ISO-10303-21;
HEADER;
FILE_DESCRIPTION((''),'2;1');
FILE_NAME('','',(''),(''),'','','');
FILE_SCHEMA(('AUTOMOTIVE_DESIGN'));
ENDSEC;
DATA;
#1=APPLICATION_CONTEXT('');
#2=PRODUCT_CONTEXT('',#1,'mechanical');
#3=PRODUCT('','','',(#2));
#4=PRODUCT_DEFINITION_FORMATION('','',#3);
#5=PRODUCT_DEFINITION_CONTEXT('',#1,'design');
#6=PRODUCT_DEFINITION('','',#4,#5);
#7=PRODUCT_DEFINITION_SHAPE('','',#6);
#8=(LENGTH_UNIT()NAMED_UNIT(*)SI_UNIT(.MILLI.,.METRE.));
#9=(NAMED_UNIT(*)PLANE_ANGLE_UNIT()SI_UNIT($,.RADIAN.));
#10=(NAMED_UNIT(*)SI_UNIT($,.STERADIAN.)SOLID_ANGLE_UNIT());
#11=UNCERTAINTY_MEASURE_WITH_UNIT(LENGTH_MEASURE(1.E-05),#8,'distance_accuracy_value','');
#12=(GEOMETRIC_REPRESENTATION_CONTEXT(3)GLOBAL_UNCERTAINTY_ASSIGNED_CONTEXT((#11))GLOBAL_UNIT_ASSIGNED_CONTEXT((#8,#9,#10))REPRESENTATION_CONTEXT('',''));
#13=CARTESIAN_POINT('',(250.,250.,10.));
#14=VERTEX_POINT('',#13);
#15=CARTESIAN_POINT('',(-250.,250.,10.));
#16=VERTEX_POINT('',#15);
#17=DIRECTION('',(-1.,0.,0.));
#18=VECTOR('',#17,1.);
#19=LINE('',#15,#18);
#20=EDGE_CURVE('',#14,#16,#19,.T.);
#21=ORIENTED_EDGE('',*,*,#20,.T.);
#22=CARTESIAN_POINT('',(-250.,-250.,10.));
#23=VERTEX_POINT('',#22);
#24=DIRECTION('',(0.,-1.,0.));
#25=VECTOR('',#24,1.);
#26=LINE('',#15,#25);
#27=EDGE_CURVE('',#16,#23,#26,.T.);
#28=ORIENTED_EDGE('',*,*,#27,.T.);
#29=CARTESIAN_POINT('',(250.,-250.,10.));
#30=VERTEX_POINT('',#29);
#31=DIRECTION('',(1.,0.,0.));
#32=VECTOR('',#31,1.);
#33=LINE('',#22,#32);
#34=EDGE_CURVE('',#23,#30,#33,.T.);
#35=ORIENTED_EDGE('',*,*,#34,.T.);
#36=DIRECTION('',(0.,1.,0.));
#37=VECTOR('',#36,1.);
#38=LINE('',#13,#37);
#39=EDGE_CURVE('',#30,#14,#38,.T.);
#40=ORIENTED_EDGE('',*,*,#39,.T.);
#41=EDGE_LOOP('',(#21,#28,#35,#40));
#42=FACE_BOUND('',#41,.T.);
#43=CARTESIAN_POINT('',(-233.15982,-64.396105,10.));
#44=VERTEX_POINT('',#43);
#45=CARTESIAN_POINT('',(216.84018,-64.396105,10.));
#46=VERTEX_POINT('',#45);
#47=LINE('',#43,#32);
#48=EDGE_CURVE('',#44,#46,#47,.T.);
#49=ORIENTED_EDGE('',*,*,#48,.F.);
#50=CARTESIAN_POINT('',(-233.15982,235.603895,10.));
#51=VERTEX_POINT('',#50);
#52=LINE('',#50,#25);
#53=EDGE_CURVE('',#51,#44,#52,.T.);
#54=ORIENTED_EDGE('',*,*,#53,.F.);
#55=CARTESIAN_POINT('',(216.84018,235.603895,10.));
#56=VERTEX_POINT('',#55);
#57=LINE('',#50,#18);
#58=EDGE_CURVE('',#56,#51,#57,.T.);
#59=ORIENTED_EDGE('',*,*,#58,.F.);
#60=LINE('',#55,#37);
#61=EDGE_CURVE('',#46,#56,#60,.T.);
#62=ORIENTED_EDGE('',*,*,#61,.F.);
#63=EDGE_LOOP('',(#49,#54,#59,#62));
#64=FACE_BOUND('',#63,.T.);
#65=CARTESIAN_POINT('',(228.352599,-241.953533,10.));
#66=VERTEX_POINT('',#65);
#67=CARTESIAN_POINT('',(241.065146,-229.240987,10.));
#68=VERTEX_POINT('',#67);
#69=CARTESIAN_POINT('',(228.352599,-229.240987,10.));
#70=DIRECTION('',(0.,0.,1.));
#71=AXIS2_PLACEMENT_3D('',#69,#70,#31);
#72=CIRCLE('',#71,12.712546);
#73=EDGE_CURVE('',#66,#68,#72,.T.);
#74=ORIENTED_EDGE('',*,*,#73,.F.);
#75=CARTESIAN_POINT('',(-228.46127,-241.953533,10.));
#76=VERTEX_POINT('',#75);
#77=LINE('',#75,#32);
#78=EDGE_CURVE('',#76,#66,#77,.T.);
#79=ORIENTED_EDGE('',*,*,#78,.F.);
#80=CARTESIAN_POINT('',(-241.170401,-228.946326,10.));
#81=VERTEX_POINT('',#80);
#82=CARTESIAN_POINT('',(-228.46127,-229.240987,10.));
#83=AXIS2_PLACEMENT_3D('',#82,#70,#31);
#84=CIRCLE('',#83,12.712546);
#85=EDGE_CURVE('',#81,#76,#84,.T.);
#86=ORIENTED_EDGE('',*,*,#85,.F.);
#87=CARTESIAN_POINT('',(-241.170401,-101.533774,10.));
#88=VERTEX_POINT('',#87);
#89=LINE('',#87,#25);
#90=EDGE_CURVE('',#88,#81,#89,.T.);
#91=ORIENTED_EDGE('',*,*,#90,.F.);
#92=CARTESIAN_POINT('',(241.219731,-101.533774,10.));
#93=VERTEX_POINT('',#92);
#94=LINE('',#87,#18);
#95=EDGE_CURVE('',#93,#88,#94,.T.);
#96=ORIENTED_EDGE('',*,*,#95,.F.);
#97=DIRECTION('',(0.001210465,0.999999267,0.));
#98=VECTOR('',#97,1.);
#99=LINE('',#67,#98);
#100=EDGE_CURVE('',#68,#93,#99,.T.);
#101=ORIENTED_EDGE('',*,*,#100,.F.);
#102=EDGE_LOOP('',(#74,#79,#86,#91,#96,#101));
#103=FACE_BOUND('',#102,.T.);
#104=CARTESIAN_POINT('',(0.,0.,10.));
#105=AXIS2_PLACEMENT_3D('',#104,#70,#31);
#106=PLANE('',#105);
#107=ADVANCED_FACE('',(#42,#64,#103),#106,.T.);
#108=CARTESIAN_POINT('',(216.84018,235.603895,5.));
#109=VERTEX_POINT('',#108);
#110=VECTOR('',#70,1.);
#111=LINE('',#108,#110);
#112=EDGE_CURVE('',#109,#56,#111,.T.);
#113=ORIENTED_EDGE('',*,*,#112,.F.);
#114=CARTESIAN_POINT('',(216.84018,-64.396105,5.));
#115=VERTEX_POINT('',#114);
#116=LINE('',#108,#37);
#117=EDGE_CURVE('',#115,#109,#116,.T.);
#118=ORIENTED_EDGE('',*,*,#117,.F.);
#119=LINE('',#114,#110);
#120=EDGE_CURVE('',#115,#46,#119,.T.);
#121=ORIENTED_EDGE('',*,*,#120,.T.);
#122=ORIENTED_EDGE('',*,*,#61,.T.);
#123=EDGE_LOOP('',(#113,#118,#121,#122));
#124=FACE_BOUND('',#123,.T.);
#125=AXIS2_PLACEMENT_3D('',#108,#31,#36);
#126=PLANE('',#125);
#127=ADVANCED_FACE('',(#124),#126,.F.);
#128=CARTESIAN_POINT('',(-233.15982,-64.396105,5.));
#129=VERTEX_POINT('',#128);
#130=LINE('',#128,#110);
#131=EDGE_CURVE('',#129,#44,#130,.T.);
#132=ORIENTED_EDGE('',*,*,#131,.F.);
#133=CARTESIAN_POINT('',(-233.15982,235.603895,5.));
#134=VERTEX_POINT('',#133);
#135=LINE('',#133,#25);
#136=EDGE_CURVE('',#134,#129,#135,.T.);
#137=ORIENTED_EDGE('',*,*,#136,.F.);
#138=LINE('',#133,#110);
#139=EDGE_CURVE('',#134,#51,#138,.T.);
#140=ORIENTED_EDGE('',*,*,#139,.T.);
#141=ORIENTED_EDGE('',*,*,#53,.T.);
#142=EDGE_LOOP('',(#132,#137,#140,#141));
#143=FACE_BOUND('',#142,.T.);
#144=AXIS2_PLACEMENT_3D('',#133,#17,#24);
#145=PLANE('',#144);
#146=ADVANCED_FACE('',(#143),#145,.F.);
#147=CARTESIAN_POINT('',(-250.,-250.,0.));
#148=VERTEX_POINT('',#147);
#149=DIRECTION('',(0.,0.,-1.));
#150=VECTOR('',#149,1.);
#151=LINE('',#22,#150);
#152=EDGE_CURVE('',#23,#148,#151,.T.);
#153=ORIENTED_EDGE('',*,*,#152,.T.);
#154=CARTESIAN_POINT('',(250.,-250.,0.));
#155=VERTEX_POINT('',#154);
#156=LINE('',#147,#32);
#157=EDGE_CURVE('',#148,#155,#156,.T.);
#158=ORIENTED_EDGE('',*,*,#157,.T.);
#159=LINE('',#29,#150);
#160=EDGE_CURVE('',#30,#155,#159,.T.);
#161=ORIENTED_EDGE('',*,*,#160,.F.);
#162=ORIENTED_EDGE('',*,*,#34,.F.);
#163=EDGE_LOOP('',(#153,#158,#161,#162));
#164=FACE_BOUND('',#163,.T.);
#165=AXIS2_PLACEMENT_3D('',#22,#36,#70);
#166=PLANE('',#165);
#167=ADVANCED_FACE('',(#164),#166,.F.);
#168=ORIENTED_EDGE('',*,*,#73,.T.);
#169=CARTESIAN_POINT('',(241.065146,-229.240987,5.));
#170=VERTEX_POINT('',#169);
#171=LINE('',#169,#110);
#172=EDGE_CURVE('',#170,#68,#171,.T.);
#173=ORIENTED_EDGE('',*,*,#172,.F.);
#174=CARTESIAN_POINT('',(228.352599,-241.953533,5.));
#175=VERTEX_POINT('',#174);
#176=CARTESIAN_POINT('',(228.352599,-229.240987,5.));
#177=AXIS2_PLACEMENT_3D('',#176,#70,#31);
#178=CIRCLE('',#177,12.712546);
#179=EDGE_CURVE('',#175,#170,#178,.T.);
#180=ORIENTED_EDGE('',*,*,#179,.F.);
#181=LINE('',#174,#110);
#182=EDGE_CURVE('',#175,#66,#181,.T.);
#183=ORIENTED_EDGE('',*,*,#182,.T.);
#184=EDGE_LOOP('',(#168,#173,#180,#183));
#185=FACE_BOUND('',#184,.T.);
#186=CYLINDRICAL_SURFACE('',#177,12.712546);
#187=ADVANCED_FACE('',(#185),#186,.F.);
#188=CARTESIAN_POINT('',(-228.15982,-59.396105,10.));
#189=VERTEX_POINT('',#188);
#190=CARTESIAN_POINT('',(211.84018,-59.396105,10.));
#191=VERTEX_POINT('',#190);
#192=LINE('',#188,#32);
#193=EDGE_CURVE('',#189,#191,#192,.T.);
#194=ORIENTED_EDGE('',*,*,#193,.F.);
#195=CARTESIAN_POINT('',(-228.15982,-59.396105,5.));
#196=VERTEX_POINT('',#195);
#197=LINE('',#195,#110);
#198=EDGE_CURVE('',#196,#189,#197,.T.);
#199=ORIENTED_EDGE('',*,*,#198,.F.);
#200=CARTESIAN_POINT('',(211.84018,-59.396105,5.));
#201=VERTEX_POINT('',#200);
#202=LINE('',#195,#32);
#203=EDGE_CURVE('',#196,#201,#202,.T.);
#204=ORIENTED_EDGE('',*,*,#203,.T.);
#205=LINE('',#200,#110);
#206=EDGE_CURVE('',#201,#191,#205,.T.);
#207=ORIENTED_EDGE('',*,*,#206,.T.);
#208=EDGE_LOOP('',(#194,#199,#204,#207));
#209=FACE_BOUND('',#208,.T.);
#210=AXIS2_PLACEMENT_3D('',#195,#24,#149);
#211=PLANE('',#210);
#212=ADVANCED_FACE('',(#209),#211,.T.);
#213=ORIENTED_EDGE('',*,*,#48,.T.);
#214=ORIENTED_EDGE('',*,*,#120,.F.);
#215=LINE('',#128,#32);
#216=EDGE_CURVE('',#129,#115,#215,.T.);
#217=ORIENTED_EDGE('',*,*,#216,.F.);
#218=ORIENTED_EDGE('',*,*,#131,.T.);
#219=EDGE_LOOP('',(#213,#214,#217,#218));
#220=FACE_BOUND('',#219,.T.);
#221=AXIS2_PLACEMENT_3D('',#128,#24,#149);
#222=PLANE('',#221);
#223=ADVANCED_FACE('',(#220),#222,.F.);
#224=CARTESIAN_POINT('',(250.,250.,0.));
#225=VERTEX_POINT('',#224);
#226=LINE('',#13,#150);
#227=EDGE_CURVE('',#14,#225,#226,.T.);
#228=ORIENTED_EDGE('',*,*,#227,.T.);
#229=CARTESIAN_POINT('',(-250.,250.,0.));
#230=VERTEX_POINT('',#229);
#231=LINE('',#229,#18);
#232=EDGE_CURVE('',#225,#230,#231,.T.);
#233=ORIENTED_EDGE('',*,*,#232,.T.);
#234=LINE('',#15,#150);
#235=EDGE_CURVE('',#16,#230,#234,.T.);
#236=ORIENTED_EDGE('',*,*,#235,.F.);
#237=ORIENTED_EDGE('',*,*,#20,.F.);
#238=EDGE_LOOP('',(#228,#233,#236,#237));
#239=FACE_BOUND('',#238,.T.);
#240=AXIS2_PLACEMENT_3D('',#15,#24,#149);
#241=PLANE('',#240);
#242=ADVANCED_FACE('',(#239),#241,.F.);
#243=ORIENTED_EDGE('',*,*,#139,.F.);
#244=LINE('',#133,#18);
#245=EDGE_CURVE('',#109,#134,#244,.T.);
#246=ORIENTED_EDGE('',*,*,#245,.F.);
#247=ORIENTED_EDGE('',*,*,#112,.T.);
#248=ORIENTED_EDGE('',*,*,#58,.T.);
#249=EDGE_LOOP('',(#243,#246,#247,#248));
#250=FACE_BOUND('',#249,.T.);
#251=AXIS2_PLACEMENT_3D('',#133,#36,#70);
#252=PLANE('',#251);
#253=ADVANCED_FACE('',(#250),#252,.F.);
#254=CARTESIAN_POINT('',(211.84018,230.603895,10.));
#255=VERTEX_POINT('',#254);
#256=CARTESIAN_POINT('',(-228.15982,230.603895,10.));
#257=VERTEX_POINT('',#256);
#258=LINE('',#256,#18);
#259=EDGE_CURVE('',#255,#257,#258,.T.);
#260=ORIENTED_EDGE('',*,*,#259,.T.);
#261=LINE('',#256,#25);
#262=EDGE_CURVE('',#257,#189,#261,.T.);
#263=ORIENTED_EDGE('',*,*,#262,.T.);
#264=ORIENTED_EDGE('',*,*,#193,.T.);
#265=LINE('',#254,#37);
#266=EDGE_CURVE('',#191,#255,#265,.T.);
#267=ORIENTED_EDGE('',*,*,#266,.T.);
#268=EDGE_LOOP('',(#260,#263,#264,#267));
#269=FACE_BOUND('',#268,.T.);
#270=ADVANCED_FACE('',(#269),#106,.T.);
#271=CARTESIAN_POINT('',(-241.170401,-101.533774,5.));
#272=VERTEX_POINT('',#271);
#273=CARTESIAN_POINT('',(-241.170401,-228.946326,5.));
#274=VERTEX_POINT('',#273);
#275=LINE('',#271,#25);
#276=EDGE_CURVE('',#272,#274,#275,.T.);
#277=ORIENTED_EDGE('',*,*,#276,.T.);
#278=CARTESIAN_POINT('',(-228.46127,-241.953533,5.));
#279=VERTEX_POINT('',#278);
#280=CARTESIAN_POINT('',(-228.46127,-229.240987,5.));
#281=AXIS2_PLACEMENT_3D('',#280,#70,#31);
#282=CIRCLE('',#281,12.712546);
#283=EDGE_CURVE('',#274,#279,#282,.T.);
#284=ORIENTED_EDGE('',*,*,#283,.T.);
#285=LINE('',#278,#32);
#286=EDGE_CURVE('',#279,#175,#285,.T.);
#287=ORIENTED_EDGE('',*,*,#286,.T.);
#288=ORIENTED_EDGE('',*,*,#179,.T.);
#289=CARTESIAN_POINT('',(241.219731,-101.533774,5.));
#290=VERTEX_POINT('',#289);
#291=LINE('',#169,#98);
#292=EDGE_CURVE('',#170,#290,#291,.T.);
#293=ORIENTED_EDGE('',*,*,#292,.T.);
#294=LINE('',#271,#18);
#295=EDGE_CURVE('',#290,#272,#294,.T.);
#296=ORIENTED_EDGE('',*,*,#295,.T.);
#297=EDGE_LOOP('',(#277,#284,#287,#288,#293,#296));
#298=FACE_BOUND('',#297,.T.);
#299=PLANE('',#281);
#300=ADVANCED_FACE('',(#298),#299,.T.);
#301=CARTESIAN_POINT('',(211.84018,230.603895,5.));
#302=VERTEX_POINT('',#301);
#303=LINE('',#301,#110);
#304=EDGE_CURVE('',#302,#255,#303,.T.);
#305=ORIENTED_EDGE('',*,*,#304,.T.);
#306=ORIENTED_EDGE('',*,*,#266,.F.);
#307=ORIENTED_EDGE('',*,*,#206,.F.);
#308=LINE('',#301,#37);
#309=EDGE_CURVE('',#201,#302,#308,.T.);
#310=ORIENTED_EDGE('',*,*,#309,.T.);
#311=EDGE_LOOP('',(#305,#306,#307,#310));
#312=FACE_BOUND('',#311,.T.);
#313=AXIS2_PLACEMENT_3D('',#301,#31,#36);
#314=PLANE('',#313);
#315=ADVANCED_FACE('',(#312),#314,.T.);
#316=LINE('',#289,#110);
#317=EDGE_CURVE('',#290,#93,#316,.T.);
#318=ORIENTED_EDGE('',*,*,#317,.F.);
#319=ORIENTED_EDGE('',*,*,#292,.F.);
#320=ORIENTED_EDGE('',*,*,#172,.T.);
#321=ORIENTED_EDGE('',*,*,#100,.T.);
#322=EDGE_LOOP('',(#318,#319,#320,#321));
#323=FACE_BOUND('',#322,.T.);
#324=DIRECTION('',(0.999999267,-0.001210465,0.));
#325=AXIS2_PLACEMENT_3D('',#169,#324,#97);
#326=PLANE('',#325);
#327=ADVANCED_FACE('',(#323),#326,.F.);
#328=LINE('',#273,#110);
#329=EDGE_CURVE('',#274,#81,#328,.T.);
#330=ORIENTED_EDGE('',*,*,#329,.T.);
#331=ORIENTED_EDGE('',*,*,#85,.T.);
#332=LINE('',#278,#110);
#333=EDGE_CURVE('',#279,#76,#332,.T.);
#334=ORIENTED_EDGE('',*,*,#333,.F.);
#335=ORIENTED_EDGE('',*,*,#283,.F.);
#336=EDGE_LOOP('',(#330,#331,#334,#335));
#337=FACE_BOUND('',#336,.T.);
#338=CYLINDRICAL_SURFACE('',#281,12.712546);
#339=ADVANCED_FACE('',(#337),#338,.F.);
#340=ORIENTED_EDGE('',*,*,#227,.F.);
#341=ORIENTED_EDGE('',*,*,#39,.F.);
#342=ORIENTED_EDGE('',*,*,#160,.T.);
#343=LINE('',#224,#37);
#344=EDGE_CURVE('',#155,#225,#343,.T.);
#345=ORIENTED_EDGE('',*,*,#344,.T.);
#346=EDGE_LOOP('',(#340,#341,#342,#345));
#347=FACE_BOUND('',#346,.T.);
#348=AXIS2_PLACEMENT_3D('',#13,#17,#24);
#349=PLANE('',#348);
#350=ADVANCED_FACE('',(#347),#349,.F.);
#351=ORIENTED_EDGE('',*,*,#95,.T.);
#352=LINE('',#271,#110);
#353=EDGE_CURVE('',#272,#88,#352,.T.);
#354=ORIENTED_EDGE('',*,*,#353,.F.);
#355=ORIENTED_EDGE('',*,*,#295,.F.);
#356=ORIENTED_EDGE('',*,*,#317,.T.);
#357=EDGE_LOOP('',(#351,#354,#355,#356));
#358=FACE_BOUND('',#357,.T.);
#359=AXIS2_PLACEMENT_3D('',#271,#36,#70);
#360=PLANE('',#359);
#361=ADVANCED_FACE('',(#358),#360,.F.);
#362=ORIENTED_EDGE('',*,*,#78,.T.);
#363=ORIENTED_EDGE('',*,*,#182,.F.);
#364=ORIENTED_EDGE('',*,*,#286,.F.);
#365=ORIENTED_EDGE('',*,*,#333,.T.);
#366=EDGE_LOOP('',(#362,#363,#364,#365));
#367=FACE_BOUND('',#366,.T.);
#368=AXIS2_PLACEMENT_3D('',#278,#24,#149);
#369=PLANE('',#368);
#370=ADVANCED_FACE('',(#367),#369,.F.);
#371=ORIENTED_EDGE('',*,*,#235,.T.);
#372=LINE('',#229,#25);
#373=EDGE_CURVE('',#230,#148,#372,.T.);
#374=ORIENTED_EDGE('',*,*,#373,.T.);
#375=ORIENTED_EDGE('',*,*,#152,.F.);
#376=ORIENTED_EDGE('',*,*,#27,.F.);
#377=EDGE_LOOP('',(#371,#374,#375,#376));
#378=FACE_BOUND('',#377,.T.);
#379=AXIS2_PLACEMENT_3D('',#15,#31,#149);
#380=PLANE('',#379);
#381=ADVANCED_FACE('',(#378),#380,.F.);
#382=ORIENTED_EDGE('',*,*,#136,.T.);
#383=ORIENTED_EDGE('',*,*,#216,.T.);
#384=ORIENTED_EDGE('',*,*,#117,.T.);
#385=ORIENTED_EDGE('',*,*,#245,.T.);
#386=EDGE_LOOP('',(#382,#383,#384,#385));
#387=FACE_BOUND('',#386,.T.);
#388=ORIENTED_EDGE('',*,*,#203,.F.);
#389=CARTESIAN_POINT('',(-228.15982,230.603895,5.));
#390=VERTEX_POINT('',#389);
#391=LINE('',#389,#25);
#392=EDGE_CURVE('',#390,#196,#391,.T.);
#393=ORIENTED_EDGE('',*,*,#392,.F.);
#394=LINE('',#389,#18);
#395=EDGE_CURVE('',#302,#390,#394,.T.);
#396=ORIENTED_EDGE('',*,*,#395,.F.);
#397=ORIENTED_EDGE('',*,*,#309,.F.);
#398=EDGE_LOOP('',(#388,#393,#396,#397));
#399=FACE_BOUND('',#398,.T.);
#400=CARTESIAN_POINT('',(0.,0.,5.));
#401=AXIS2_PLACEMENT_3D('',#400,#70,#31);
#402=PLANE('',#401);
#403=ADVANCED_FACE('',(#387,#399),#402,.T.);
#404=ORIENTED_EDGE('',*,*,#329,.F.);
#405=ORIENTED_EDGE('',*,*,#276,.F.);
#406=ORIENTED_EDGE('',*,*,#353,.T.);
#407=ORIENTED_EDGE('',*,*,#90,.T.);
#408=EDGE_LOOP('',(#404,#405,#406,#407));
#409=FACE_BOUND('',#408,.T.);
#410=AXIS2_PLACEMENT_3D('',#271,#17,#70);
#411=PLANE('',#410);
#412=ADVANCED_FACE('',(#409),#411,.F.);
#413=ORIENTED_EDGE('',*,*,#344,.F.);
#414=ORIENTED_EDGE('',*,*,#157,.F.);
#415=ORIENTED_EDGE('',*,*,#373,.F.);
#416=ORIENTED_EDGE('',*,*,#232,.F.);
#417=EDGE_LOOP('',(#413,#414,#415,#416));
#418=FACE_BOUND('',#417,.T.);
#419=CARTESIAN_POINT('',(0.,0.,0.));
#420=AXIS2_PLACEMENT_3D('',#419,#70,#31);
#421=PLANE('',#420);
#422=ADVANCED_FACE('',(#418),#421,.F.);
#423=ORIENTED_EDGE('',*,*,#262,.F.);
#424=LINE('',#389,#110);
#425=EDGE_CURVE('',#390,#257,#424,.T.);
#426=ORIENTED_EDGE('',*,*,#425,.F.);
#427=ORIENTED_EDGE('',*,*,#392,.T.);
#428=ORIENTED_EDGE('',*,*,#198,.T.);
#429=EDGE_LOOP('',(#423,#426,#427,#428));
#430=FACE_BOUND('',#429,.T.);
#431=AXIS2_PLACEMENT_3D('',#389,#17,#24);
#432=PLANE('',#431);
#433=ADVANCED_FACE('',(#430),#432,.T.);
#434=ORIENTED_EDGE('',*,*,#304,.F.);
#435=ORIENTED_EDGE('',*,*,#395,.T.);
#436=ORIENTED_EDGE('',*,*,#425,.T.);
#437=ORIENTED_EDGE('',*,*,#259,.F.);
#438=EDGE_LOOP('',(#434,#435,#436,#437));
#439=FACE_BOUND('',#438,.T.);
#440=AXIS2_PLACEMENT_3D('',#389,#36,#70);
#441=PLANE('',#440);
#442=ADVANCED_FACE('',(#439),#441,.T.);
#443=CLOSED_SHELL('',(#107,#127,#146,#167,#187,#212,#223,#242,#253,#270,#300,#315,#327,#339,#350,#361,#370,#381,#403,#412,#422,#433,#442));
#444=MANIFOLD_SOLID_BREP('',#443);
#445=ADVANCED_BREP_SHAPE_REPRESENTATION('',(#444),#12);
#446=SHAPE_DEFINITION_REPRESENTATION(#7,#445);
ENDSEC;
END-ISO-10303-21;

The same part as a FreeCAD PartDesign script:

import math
import FreeCAD as App
import Part
import Sketcher
from FreeCAD import Vector

doc = App.newDocument("Part")
body = doc.addObject("PartDesign::Body", "Body")

sketch1 = doc.addObject("Sketcher::SketchObject", "Sketch")
body.addObject(sketch1)
sketch1.AttachmentSupport = (doc.XY_Plane, [""])
sketch1.MapMode = "FlatFace"
sketch1.addGeometry([
    Part.LineSegment(Vector(-250, 250, 0), Vector(-250, -250, 0)),
    Part.LineSegment(Vector(-250, -250, 0), Vector(250, -250, 0)),
    Part.LineSegment(Vector(250, -250, 0), Vector(250, 250, 0)),
    Part.LineSegment(Vector(250, 250, 0), Vector(-250, 250, 0)),
], False)
sketch1.addConstraint([
    Sketcher.Constraint("Coincident", 0, 2, 1, 1),
    Sketcher.Constraint("Coincident", 1, 2, 2, 1),
    Sketcher.Constraint("Coincident", 2, 2, 3, 1),
    Sketcher.Constraint("Coincident", 3, 2, 0, 1),
    Sketcher.Constraint("Vertical", 0),
    Sketcher.Constraint("Horizontal", 1),
    Sketcher.Constraint("Vertical", 2),
    Sketcher.Constraint("Horizontal", 3),
    Sketcher.Constraint("Symmetric", 0, 2, 2, 2, -1, 1),
    Sketcher.Constraint("Equal", 3, 0),
    Sketcher.Constraint("DistanceX", 1, 1, 1, 2, 500.0),
])
pad1 = doc.addObject("PartDesign::Pad", "Pad")
body.addObject(pad1)
pad1.Profile = sketch1
pad1.Length = 10

sketch2 = doc.addObject("Sketcher::SketchObject", "Sketch001")
body.addObject(sketch2)
sketch2.AttachmentSupport = (doc.XY_Plane, [""])
sketch2.MapMode = "FlatFace"
sketch2.AttachmentOffset = App.Placement(Vector(0, 0, 10), App.Rotation())
sketch2.addGeometry([
    Part.LineSegment(Vector(241, -229, 0), Vector(241, -102, 0)),
    Part.LineSegment(Vector(241, -102, 0), Vector(-241, -102, 0)),
    Part.LineSegment(Vector(-241, -102, 0), Vector(-241, -229, 0)),
    Part.ArcOfCircle(Part.Circle(Vector(-228, -229, 0), Vector(0, 0, 1), 13), math.radians(179), math.radians(270)),
    Part.LineSegment(Vector(-228, -242, 0), Vector(228, -242, 0)),
    Part.ArcOfCircle(Part.Circle(Vector(228, -229, 0), Vector(0, 0, 1), 13), math.radians(-90), math.radians(0)),
], False)
sketch2.addConstraint([
    Sketcher.Constraint("Coincident", 0, 2, 1, 1),
    Sketcher.Constraint("Coincident", 1, 2, 2, 1),
    Sketcher.Constraint("Coincident", 2, 2, 3, 1),
    Sketcher.Constraint("Tangent", 3, 2, 4, 1),
    Sketcher.Constraint("Tangent", 4, 2, 5, 1),
    Sketcher.Constraint("Coincident", 5, 2, 0, 1),
    Sketcher.Constraint("Horizontal", 1),
    Sketcher.Constraint("Vertical", 2),
    Sketcher.Constraint("Horizontal", 4),
    Sketcher.Constraint("Equal", 3, 5),
    Sketcher.Constraint("Horizontal", 3, 3, 5, 2),
    Sketcher.Constraint("Radius", 3, 12.712546),
    Sketcher.Constraint("DistanceX", 3, 3, 0, 2, 469.681001),
    Sketcher.Constraint("DistanceX", 1, 2, 5, 3, 469.523),
    Sketcher.Constraint("DistanceX", 1, 2, 1, 1, 482.390132),
    Sketcher.Constraint("DistanceY", 2, 2, 2, 1, 127.412552),
    Sketcher.Constraint("DistanceX", -1, 1, 5, 3, 228.3526),
    Sketcher.Constraint("DistanceY", 3, 3, -1, 1, 229.240987),
])
pocket1 = doc.addObject("PartDesign::Pocket", "Pocket")
body.addObject(pocket1)
pocket1.Profile = sketch2
pocket1.Length = 5

sketch3 = doc.addObject("Sketcher::SketchObject", "Sketch002")
body.addObject(sketch3)
sketch3.AttachmentSupport = (doc.XY_Plane, [""])
sketch3.MapMode = "FlatFace"
sketch3.AttachmentOffset = App.Placement(Vector(0, 0, 10), App.Rotation())
sketch3.addGeometry([
    Part.LineSegment(Vector(-233, 236, 0), Vector(-233, -64, 0)),
    Part.LineSegment(Vector(-233, -64, 0), Vector(217, -64, 0)),
    Part.LineSegment(Vector(217, -64, 0), Vector(217, 236, 0)),
    Part.LineSegment(Vector(217, 236, 0), Vector(-233, 236, 0)),
    Part.LineSegment(Vector(212, -59, 0), Vector(-228, -59, 0)),
    Part.LineSegment(Vector(-228, -59, 0), Vector(-228, 231, 0)),
    Part.LineSegment(Vector(-228, 231, 0), Vector(212, 231, 0)),
    Part.LineSegment(Vector(212, 231, 0), Vector(212, -59, 0)),
], False)
sketch3.addConstraint([
    Sketcher.Constraint("Coincident", 0, 2, 1, 1),
    Sketcher.Constraint("Coincident", 1, 2, 2, 1),
    Sketcher.Constraint("Coincident", 2, 2, 3, 1),
    Sketcher.Constraint("Coincident", 3, 2, 0, 1),
    Sketcher.Constraint("Coincident", 4, 2, 5, 1),
    Sketcher.Constraint("Coincident", 5, 2, 6, 1),
    Sketcher.Constraint("Coincident", 6, 2, 7, 1),
    Sketcher.Constraint("Coincident", 7, 2, 4, 1),
    Sketcher.Constraint("Vertical", 0),
    Sketcher.Constraint("Horizontal", 1),
    Sketcher.Constraint("Vertical", 2),
    Sketcher.Constraint("Horizontal", 3),
    Sketcher.Constraint("Horizontal", 4),
    Sketcher.Constraint("Vertical", 5),
    Sketcher.Constraint("Horizontal", 6),
    Sketcher.Constraint("Vertical", 7),
    Sketcher.Constraint("DistanceX", 1, 1, 1, 2, 450.0),
    Sketcher.Constraint("DistanceX", 4, 2, 4, 1, 440.0),
    Sketcher.Constraint("DistanceY", 0, 2, 0, 1, 300.0),
    Sketcher.Constraint("DistanceY", 5, 1, 5, 2, 290.0),
    Sketcher.Constraint("DistanceX", 0, 2, 4, 2, 5.0),
    Sketcher.Constraint("DistanceY", 0, 2, 4, 2, 5.0),
    Sketcher.Constraint("DistanceX", 0, 2, -1, 1, 233.15982),
    Sketcher.Constraint("DistanceY", 0, 2, -1, 1, 64.396105),
])
pocket2 = doc.addObject("PartDesign::Pocket", "Pocket001")
body.addObject(pocket2)
pocket2.Profile = sketch3
pocket2.Length = 5

doc.recompute()
